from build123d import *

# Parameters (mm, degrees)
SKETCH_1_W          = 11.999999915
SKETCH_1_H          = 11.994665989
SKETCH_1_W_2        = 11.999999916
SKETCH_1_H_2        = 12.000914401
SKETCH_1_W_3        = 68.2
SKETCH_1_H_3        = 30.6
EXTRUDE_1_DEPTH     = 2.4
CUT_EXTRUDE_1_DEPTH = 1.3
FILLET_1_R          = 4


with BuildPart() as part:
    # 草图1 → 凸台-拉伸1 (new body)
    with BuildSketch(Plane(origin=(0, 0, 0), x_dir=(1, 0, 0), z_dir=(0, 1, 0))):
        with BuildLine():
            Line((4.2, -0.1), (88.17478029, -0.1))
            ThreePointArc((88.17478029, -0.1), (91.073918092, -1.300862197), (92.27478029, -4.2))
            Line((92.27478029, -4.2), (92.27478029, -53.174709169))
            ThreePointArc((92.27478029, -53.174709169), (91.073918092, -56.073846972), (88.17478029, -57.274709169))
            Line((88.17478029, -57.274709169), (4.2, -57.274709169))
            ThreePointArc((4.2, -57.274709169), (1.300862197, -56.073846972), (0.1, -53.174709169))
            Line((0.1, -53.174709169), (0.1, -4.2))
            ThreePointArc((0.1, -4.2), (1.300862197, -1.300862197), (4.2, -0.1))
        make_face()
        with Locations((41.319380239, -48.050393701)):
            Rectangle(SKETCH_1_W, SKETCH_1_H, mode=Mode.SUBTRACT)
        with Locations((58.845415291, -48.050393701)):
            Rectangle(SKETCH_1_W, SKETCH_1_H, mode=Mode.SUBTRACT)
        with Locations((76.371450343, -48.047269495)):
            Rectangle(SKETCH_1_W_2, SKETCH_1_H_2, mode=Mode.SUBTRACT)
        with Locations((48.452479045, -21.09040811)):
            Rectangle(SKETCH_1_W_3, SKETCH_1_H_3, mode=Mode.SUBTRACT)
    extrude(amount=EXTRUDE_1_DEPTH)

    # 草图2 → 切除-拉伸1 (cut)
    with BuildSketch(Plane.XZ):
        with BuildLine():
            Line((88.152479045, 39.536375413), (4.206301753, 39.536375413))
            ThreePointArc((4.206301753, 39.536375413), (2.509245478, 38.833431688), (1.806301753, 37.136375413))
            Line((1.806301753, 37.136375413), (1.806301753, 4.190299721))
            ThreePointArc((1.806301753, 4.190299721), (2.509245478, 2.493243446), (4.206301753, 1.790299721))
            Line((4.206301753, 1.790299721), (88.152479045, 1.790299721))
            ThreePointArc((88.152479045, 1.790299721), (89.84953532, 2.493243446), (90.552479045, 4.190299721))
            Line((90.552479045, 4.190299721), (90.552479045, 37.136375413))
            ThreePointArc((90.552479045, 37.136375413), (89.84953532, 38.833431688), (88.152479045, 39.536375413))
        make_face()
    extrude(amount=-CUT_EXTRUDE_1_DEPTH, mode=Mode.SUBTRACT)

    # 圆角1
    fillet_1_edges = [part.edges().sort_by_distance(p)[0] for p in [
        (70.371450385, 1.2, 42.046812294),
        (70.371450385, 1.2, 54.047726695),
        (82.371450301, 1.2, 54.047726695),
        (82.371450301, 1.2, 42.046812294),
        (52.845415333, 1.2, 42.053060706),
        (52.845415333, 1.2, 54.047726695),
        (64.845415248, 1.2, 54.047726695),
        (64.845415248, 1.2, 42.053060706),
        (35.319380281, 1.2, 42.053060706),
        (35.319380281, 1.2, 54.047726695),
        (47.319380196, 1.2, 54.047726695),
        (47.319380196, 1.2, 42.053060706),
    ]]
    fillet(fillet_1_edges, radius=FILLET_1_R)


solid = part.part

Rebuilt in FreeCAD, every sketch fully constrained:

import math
import FreeCAD as App
import Part
import Sketcher
Q = App.Units.Quantity


def edges_at(feature, points):
    """Names of the edges that pass closest to the given points."""
    edges = feature.Shape.Edges
    near = lambda p: min(range(len(edges)), key=lambda i: edges[i].distToShape(Part.Vertex(*p))[0])
    return sorted({f"Edge{near(p) + 1}" for p in points})


def add_polygon(sketch, points):
    """Adds a closed chain of lines whose ends are joined by coincident constraints."""
    first, n = sketch.GeometryCount, len(points)
    for a, b in zip(points, points[1:] + points[:1]):
        sketch.addGeometry(Part.LineSegment(App.Vector(*a, 0), App.Vector(*b, 0)), False)
    for i in range(n):
        sketch.addConstraint(Sketcher.Constraint("Coincident", first + i, 2, first + (i + 1) % n, 1))

doc = App.newDocument("Part")
body = doc.addObject("PartDesign::Body", "Body")

sketch1 = doc.addObject("Sketcher::SketchObject", "Sketch")
body.addObject(sketch1)
sketch1.AttachmentSupport = (doc.XZ_Plane, [""])
sketch1.MapMode = "FlatFace"
sketch1.addGeometry(Part.LineSegment(App.Vector(88.17478, 0.1, 0), App.Vector(4.2, 0.1, 0)), False)
sketch1.addGeometry(Part.ArcOfCircle(Part.Circle(App.Vector(4.2, 4.2, 0), App.Vector(0, 0, 1), 4.1), math.radians(180), math.radians(270)), False)
sketch1.addGeometry(Part.LineSegment(App.Vector(0.1, 4.2, 0), App.Vector(0.1, 53.174709, 0)), False)
sketch1.addGeometry(Part.ArcOfCircle(Part.Circle(App.Vector(4.2, 53.174709, 0), App.Vector(0, 0, 1), 4.1), math.radians(90), math.radians(180)), False)
sketch1.addGeometry(Part.LineSegment(App.Vector(4.2, 57.274709, 0), App.Vector(88.17478, 57.274709, 0)), False)
sketch1.addGeometry(Part.ArcOfCircle(Part.Circle(App.Vector(88.17478, 53.174709, 0), App.Vector(0, 0, 1), 4.1), math.radians(0), math.radians(90)), False)
sketch1.addGeometry(Part.LineSegment(App.Vector(92.27478, 53.174709, 0), App.Vector(92.27478, 4.2, 0)), False)
sketch1.addGeometry(Part.ArcOfCircle(Part.Circle(App.Vector(88.17478, 4.2, 0), App.Vector(0, 0, 1), 4.1), math.radians(-90), math.radians(0)), False)
add_polygon(sketch1, [(70.37145, 54.047727), (70.37145, 42.046812), (82.37145, 42.046812), (82.37145, 54.047727)])
add_polygon(sketch1, [(52.845415, 54.047727), (52.845415, 42.053061), (64.845415, 42.053061), (64.845415, 54.047727)])
add_polygon(sketch1, [(35.31938, 54.047727), (35.31938, 42.053061), (47.31938, 42.053061), (47.31938, 54.047727)])
add_polygon(sketch1, [(14.352479, 36.390408), (14.352479, 5.790408), (82.552479, 5.790408), (82.552479, 36.390408)])
sketch1.addConstraint([
    Sketcher.Constraint("Tangent", 0, 2, 1, 2),
    Sketcher.Constraint("Tangent", 1, 1, 2, 1),
    Sketcher.Constraint("Tangent", 2, 2, 3, 2),
    Sketcher.Constraint("Tangent", 3, 1, 4, 1),
    Sketcher.Constraint("Tangent", 4, 2, 5, 2),
    Sketcher.Constraint("Tangent", 5, 1, 6, 1),
    Sketcher.Constraint("Tangent", 6, 2, 7, 2),
    Sketcher.Constraint("Tangent", 7, 1, 0, 1),
    Sketcher.Constraint("Horizontal", 0),
    Sketcher.Constraint("Vertical", 2),
    Sketcher.Constraint("Horizontal", 4),
    Sketcher.Constraint("Vertical", 6),
    Sketcher.Constraint("Vertical", 8),
    Sketcher.Constraint("Horizontal", 9),
    Sketcher.Constraint("Vertical", 10),
    Sketcher.Constraint("Horizontal", 11),
    Sketcher.Constraint("Vertical", 12),
    Sketcher.Constraint("Horizontal", 13),
    Sketcher.Constraint("Vertical", 14),
    Sketcher.Constraint("Horizontal", 15),
    Sketcher.Constraint("Vertical", 16),
    Sketcher.Constraint("Horizontal", 17),
    Sketcher.Constraint("Vertical", 18),
    Sketcher.Constraint("Horizontal", 19),
    Sketcher.Constraint("Vertical", 20),
    Sketcher.Constraint("Horizontal", 21),
    Sketcher.Constraint("Vertical", 22),
    Sketcher.Constraint("Horizontal", 23),
    Sketcher.Constraint("Equal", 1, 3),
    Sketcher.Constraint("Equal", 3, 5),
    Sketcher.Constraint("Equal", 5, 7),
    Sketcher.Constraint("Horizontal", 11, 2, 14, 2),
    Sketcher.Constraint("Horizontal", 13, 2, 16, 2),
    Sketcher.Constraint("Horizontal", 15, 2, 18, 2),
    Sketcher.Constraint("Equal", 11, 13),
    Sketcher.Constraint("Equal", 15, 17),
    Sketcher.Constraint("Radius", 1, Q("4.1 mm")),
    Sketcher.Constraint("DistanceX", 9, 1, 9, 2, Q("12 mm")),
    Sketcher.Constraint("DistanceX", 21, 1, 21, 2, Q("68.2 mm")),
    Sketcher.Constraint("DistanceY", 20, 2, 20, 1, Q("30.6 mm")),
    Sketcher.Constraint("DistanceX", -1, 1, 1, 3, Q("4.2 mm")),
    Sketcher.Constraint("DistanceY", -1, 1, 1, 3, Q("4.2 mm")),
    Sketcher.Constraint("DistanceX", 0, 2, 0, 1, Q("83.97478 mm")),
    Sketcher.Constraint("DistanceY", 2, 1, 2, 2, Q("48.974709 mm")),
    Sketcher.Constraint("DistanceX", 20, 2, 16, 2, Q("20.966901 mm")),
    Sketcher.Constraint("DistanceY", 20, 2, 3, 3, Q("47.384301 mm")),
    Sketcher.Constraint("DistanceX", 21, 2, 7, 3, Q("5.622301 mm")),
    Sketcher.Constraint("DistanceY", 8, 2, 8, 1, Q("12.000914 mm")),
    Sketcher.Constraint("DistanceY", 12, 2, 12, 1, Q("11.994666 mm")),
    Sketcher.Constraint("DistanceX", -1, 1, 8, 2, Q("70.37145 mm")),
    Sketcher.Constraint("DistanceY", -1, 1, 12, 2, Q("42.053061 mm")),
    Sketcher.Constraint("DistanceX", -1, 1, 12, 2, Q("52.845415 mm")),
])
pad1 = doc.addObject("PartDesign::Pad", "Pad")
body.addObject(pad1)
pad1.Profile = sketch1
pad1.Length = 2.4
pad1.Reversed = True

sketch2 = doc.addObject("Sketcher::SketchObject", "Sketch001")
body.addObject(sketch2)
sketch2.AttachmentSupport = (doc.XZ_Plane, [""])
sketch2.MapMode = "FlatFace"
sketch2.addGeometry([
    Part.LineSegment(App.Vector(88.152479, 39.536375, 0), App.Vector(4.206302, 39.536375, 0)),
    Part.ArcOfCircle(Part.Circle(App.Vector(4.206302, 37.136375, 0), App.Vector(0, 0, 1), 2.4), math.radians(90), math.radians(180)),
    Part.LineSegment(App.Vector(1.806302, 37.136375, 0), App.Vector(1.806302, 4.1903, 0)),
    Part.ArcOfCircle(Part.Circle(App.Vector(4.206302, 4.1903, 0), App.Vector(0, 0, 1), 2.4), math.radians(180), math.radians(270)),
    Part.LineSegment(App.Vector(4.206302, 1.7903, 0), App.Vector(88.152479, 1.7903, 0)),
    Part.ArcOfCircle(Part.Circle(App.Vector(88.152479, 4.1903, 0), App.Vector(0, 0, 1), 2.4), math.radians(-90), math.radians(0)),
    Part.LineSegment(App.Vector(90.552479, 4.1903, 0), App.Vector(90.552479, 37.136375, 0)),
    Part.ArcOfCircle(Part.Circle(App.Vector(88.152479, 37.136375, 0), App.Vector(0, 0, 1), 2.4), math.radians(0), math.radians(90)),
], False)
sketch2.addConstraint([
    Sketcher.Constraint("Tangent", 0, 2, 1, 1),
    Sketcher.Constraint("Tangent", 1, 2, 2, 1),
    Sketcher.Constraint("Tangent", 2, 2, 3, 1),
    Sketcher.Constraint("Tangent", 3, 2, 4, 1),
    Sketcher.Constraint("Tangent", 4, 2, 5, 1),
    Sketcher.Constraint("Tangent", 5, 2, 6, 1),
    Sketcher.Constraint("Tangent", 6, 2, 7, 1),
    Sketcher.Constraint("Tangent", 7, 2, 0, 1),
    Sketcher.Constraint("Horizontal", 0),
    Sketcher.Constraint("Vertical", 2),
    Sketcher.Constraint("Horizontal", 4),
    Sketcher.Constraint("Vertical", 6),
    Sketcher.Constraint("Equal", 1, 3),
    Sketcher.Constraint("Equal", 3, 5),
    Sketcher.Constraint("Equal", 5, 7),
    Sketcher.Constraint("Radius", 1, Q("2.4 mm")),
    Sketcher.Constraint("DistanceX", -1, 1, 1, 3, Q("4.206302 mm")),
    Sketcher.Constraint("DistanceY", -1, 1, 3, 3, Q("4.1903 mm")),
    Sketcher.Constraint("DistanceX", 0, 2, 0, 1, Q("83.946177 mm")),
    Sketcher.Constraint("DistanceY", 2, 2, 2, 1, Q("32.946076 mm")),
])
pocket1 = doc.addObject("PartDesign::Pocket", "Pocket")
body.addObject(pocket1)
pocket1.Profile = sketch2
pocket1.Length = 1.3
doc.recompute()

fillet = doc.addObject("PartDesign::Fillet", "Fillet")
body.addObject(fillet)
fillet.Base = (pocket1, edges_at(pocket1, [
    (70.371, 1.2, 42.047),
    (70.371, 1.2, 54.048),
    (82.371, 1.2, 54.048),
    (82.371, 1.2, 42.047),
    (52.845, 1.2, 42.053),
    (52.845, 1.2, 54.048),
    (64.845, 1.2, 54.048),
    (64.845, 1.2, 42.053),
    (35.319, 1.2, 42.053),
    (35.319, 1.2, 54.048),
    (47.319, 1.2, 54.048),
    (47.319, 1.2, 42.053),
]))
fillet.Radius = 4

doc.recompute()
